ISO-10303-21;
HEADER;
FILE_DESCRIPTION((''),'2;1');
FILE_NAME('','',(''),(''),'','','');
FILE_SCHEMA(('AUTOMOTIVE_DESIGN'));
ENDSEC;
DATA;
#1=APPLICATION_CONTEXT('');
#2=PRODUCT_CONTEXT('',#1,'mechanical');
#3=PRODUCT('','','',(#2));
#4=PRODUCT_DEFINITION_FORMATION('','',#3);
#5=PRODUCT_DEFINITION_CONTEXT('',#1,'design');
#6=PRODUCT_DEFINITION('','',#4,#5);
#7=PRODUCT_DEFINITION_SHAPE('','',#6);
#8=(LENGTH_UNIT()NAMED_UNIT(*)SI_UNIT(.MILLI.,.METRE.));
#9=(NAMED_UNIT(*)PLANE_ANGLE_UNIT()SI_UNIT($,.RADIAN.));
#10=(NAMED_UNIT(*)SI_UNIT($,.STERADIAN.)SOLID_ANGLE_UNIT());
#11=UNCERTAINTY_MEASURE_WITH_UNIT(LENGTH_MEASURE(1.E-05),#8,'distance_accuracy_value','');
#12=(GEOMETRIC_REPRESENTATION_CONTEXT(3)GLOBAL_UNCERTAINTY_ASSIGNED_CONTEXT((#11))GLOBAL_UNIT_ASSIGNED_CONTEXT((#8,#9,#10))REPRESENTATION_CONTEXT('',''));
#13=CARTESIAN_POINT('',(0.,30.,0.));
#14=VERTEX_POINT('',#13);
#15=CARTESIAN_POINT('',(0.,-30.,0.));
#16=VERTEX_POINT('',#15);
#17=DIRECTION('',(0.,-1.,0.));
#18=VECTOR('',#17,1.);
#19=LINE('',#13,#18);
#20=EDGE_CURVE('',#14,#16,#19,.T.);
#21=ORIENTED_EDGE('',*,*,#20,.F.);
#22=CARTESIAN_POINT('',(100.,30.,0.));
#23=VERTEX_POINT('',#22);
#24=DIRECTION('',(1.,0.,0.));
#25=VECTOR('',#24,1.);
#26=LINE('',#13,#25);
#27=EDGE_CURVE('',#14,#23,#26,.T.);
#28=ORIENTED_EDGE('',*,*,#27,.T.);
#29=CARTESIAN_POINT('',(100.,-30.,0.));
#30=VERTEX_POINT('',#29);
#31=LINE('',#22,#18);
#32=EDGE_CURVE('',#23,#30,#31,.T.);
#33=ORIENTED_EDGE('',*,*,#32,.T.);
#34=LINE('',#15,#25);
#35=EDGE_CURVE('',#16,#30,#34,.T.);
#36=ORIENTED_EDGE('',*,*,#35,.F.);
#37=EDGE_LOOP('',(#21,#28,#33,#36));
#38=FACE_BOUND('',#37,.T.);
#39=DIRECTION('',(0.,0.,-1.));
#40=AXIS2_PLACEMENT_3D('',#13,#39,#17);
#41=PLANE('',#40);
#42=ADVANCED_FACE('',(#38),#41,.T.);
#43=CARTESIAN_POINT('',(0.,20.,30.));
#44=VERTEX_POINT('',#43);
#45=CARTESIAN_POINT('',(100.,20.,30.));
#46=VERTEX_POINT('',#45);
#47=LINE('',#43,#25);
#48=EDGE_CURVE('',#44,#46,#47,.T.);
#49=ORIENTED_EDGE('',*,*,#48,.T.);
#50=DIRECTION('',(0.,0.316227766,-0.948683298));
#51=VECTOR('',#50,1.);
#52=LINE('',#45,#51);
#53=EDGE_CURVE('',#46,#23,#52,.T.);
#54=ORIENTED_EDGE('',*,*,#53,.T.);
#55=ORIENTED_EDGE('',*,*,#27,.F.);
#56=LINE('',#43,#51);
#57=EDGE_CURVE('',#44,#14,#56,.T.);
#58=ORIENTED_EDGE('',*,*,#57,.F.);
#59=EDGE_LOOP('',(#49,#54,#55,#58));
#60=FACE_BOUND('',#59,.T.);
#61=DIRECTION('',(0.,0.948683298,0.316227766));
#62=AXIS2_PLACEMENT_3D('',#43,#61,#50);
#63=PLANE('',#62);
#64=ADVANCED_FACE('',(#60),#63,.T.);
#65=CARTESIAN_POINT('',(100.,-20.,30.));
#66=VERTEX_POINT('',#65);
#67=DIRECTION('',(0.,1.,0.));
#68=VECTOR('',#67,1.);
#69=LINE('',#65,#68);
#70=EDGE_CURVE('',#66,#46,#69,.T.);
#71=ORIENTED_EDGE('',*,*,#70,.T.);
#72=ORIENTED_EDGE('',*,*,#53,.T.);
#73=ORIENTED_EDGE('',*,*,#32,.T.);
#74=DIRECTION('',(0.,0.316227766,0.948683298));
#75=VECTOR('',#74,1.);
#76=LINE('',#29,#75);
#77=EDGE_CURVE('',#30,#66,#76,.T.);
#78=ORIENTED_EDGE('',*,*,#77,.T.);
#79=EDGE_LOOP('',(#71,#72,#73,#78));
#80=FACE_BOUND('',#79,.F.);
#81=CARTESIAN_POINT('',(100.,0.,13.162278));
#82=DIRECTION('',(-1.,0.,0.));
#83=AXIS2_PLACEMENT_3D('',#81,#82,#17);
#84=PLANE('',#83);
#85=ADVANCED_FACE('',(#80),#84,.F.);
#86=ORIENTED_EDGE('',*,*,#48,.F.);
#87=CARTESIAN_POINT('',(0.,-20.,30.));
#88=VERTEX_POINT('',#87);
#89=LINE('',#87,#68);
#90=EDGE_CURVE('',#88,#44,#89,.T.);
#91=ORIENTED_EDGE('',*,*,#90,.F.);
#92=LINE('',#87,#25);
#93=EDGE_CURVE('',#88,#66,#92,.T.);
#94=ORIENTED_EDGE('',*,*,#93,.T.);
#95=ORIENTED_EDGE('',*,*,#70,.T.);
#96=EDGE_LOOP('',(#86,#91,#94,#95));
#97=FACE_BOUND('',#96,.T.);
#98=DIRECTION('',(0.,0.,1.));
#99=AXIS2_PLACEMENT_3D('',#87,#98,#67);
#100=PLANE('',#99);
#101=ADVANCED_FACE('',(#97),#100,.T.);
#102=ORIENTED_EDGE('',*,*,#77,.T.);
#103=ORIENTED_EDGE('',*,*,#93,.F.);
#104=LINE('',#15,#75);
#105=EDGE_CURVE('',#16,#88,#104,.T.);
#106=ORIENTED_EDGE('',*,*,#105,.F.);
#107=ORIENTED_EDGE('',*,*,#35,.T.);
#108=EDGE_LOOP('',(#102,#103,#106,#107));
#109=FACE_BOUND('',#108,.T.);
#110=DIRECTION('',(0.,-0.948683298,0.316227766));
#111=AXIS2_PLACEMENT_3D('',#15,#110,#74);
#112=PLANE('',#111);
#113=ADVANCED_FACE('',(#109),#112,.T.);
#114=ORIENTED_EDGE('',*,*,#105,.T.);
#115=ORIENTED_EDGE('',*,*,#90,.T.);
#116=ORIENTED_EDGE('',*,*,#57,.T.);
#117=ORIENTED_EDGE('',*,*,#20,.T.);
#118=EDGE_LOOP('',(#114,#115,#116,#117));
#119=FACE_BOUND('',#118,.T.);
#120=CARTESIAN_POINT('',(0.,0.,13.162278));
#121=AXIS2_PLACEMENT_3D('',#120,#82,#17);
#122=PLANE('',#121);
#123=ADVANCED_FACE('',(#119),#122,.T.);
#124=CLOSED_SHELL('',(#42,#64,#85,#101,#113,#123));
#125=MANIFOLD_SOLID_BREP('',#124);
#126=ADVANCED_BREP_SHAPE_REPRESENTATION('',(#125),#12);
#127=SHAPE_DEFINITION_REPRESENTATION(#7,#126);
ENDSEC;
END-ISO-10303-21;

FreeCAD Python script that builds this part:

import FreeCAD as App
import Part
import Sketcher


def add_polygon(sketch, points):
    """Adds a closed chain of lines whose ends are joined by coincident constraints."""
    first, n = sketch.GeometryCount, len(points)
    for a, b in zip(points, points[1:] + points[:1]):
        sketch.addGeometry(Part.LineSegment(App.Vector(*a, 0), App.Vector(*b, 0)), False)
    for i in range(n):
        sketch.addConstraint(Sketcher.Constraint("Coincident", first + i, 2, first + (i + 1) % n, 1))

doc = App.newDocument("Part")
body = doc.addObject("PartDesign::Body", "Body")

# Sketch on YZ plane
sketch1 = doc.addObject("Sketcher::SketchObject", "Sketch")
body.addObject(sketch1)
sketch1.AttachmentSupport = (doc.YZ_Plane, [""])
sketch1.MapMode = "FlatFace"
add_polygon(sketch1, [(-20, 30), (-30, 0), (30, 0), (20, 30)])  # lines 0-3
sketch1.addConstraint(Sketcher.Constraint("Horizontal", 1))
sketch1.addConstraint(Sketcher.Constraint("Horizontal", 3))
sketch1.addConstraint(Sketcher.Constraint("Symmetric", 0, 2, 1, 2, -1, 1))
sketch1.addConstraint(Sketcher.Constraint("Equal", 0, 2))
sketch1.addConstraint(Sketcher.Constraint("DistanceX", 1, 1, 1, 2, 60.0))
sketch1.addConstraint(Sketcher.Constraint("DistanceX", 3, 2, 3, 1, 40.0))
sketch1.addConstraint(Sketcher.Constraint("DistanceY", -1, 1, 2, 2, 30.0))
pad1 = doc.addObject("PartDesign::Pad", "Pad")
body.addObject(pad1)
pad1.Profile = sketch1
pad1.Length = 100

doc.recompute()
